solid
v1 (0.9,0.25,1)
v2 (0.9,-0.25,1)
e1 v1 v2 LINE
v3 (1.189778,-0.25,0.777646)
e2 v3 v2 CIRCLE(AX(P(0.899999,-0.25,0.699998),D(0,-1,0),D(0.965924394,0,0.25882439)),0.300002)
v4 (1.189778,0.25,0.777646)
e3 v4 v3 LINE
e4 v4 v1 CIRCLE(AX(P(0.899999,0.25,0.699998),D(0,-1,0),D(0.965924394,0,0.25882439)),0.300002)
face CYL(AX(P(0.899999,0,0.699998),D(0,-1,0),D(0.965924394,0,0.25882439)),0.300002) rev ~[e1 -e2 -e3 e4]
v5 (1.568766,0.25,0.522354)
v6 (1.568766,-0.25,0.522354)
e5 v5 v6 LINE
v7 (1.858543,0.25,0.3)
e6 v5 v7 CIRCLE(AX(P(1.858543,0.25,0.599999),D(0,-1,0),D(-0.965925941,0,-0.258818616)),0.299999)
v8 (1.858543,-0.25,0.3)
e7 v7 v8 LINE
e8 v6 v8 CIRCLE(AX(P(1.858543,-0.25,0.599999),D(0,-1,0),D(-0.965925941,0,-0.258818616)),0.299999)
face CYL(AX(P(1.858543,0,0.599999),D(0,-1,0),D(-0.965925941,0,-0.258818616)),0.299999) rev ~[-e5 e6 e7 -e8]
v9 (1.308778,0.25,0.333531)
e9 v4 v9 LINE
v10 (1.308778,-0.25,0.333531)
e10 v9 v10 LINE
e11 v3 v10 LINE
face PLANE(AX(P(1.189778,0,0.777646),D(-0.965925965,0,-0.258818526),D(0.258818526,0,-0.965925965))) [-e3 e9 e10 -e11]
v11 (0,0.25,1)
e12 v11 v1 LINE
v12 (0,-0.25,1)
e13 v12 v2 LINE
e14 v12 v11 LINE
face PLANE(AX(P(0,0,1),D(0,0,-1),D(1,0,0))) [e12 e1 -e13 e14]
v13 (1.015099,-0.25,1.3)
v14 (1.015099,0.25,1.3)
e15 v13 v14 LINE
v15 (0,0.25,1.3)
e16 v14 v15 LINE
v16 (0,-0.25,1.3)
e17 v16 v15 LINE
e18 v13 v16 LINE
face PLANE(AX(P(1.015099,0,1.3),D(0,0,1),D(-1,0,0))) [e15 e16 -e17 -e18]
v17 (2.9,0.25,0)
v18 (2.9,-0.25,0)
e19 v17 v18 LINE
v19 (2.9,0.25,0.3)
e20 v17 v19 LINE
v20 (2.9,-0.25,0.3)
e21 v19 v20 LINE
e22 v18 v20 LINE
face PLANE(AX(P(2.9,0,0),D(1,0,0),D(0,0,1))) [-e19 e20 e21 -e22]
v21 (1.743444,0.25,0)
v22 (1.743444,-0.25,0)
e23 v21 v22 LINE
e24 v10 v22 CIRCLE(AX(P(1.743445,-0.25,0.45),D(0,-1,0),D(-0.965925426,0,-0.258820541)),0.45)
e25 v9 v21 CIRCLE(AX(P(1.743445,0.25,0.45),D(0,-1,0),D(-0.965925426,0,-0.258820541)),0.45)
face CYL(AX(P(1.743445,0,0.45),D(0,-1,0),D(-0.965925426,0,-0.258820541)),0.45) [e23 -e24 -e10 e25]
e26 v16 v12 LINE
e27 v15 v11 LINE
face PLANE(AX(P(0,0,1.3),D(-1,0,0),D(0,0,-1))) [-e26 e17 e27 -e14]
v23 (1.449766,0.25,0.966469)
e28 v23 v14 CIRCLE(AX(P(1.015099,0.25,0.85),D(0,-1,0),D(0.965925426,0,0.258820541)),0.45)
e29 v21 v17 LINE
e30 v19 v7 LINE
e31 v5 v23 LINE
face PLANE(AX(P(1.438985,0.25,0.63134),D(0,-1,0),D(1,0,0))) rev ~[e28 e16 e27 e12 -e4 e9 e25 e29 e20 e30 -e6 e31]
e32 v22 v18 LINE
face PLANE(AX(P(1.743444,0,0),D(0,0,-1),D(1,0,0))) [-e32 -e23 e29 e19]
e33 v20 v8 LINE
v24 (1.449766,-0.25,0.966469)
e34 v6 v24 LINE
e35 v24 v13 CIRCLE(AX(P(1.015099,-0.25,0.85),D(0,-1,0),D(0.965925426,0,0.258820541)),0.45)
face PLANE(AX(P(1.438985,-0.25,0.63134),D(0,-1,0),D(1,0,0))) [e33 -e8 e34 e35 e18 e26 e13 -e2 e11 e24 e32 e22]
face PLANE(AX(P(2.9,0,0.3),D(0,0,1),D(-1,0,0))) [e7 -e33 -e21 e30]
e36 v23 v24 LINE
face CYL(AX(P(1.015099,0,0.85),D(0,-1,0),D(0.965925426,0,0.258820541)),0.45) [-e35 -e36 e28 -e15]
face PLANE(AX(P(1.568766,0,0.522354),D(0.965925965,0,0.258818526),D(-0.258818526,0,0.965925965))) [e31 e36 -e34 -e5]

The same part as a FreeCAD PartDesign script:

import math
import FreeCAD as App
import Part
import Sketcher
Q = App.Units.Quantity

doc = App.newDocument("Part")
params = doc.addObject("Spreadsheet::Sheet", "Params")
for row, (alias, value) in enumerate([
    ("sketch1_radius", "0.300002 mm"),
    ("sketch1_radius2", "0.299999 mm"),
    ("sketch1_radius3", "0.45 mm"),
    ("sketch1_width", "0.9 mm"),
    ("sketch1_height", "0.3 mm"),
    ("pad1_length", "0.5 mm"),
], start=1):
    params.set(f"A{row}", alias)
    params.set(f"B{row}", "=" + value)
    params.setAlias(f"B{row}", alias)

body = doc.addObject("PartDesign::Body", "Body")

sketch1 = body.newObject("Sketcher::SketchObject", "Sketch")
sketch1.AttachmentSupport = (doc.getObject("XZ_Plane"), [""])
sketch1.MapMode = "FlatFace"
sketch1.addGeometry(Part.LineSegment(App.Vector(0, 1, 0), App.Vector(0.9, 1, 0)), False)
sketch1.addGeometry(Part.ArcOfCircle(Part.Circle(App.Vector(0.9, 0.7, 0), App.Vector(0, 0, 1), 0.3), math.radians(15), math.radians(90)), False)
sketch1.addGeometry(Part.LineSegment(App.Vector(1.19, 0.78, 0), App.Vector(1.31, 0.33, 0)), False)
sketch1.addGeometry(Part.ArcOfCircle(Part.Circle(App.Vector(1.74, 0.45, 0), App.Vector(0, 0, 1), 0.45), math.radians(-165), math.radians(-90)), False)
sketch1.addGeometry(Part.LineSegment(App.Vector(1.74, 0, 0), App.Vector(2.9, 0, 0)), False)
sketch1.addGeometry(Part.LineSegment(App.Vector(2.9, 0, 0), App.Vector(2.9, 0.3, 0)), False)
sketch1.addGeometry(Part.LineSegment(App.Vector(2.9, 0.3, 0), App.Vector(1.86, 0.3, 0)), False)
sketch1.addGeometry(Part.ArcOfCircle(Part.Circle(App.Vector(1.86, 0.6, 0), App.Vector(0, 0, 1), 0.3), math.radians(-165), math.radians(-90)), False)
sketch1.addGeometry(Part.LineSegment(App.Vector(1.57, 0.52, 0), App.Vector(1.45, 0.97, 0)), False)
sketch1.addGeometry(Part.ArcOfCircle(Part.Circle(App.Vector(1.02, 0.85, 0), App.Vector(0, 0, 1), 0.45), math.radians(15), math.radians(90)), False)
sketch1.addGeometry(Part.LineSegment(App.Vector(1.02, 1.3, 0), App.Vector(0, 1.3, 0)), False)
sketch1.addGeometry(Part.LineSegment(App.Vector(0, 1.3, 0), App.Vector(0, 1, 0)), False)
sketch1.addConstraint(Sketcher.Constraint("Coincident", 0, 2, 1, 2))
sketch1.addConstraint(Sketcher.Constraint("Coincident", 1, 1, 2, 1))
sketch1.addConstraint(Sketcher.Constraint("Coincident", 2, 2, 3, 1))
sketch1.addConstraint(Sketcher.Constraint("Tangent", 3, 2, 4, 1))
sketch1.addConstraint(Sketcher.Constraint("Coincident", 4, 2, 5, 1))
sketch1.addConstraint(Sketcher.Constraint("Coincident", 5, 2, 6, 1))
sketch1.addConstraint(Sketcher.Constraint("Tangent", 6, 2, 7, 2))
sketch1.addConstraint(Sketcher.Constraint("Tangent", 7, 1, 8, 1))
sketch1.addConstraint(Sketcher.Constraint("Coincident", 8, 2, 9, 1))
sketch1.addConstraint(Sketcher.Constraint("Tangent", 9, 2, 10, 1))
sketch1.addConstraint(Sketcher.Constraint("Coincident", 10, 2, 11, 1))
sketch1.addConstraint(Sketcher.Constraint("Coincident", 11, 2, 0, 1))
sketch1.addConstraint(Sketcher.Constraint("Horizontal", 0))
sketch1.addConstraint(Sketcher.Constraint("Horizontal", 4))
sketch1.addConstraint(Sketcher.Constraint("Vertical", 5))
sketch1.addConstraint(Sketcher.Constraint("Horizontal", 6))
sketch1.addConstraint(Sketcher.Constraint("Horizontal", 10))
sketch1.addConstraint(Sketcher.Constraint("Vertical", 11))
sketch1.addConstraint(Sketcher.Constraint("Equal", 3, 9))
sketch1.addConstraint(Sketcher.Constraint("PointOnObject", 3, 2, -1))
sketch1.addConstraint(Sketcher.Constraint("PointOnObject", 10, 2, -2))
sketch1.addConstraint(Sketcher.Constraint("Parallel", 2, 8))
sketch1.addConstraint(Sketcher.Constraint("Vertical", 1, 3, 0, 2))
sketch1.addConstraint(Sketcher.Constraint("Equal", 5, 11))
sketch1.addConstraint(Sketcher.Constraint("Equal", 2, 8))
sketch1.addConstraint(Sketcher.Constraint("Radius", 1, Q("0.300002 mm")))
sketch1.addConstraint(Sketcher.Constraint("Radius", 7, Q("0.299999 mm")))
sketch1.addConstraint(Sketcher.Constraint("Radius", 3, Q("0.45 mm")))
sketch1.addConstraint(Sketcher.Constraint("DistanceX", 0, 1, 0, 2, Q("0.9 mm")))
sketch1.addConstraint(Sketcher.Constraint("DistanceY", 5, 1, 5, 2, Q("0.3 mm")))
sketch1.addConstraint(Sketcher.Constraint("DistanceY", -1, 1, 0, 2, Q("1 mm")))
sketch1.addConstraint(Sketcher.Constraint("DistanceX", -1, 1, 4, 2, Q("2.9 mm")))
sketch1.addConstraint(Sketcher.Constraint("DistanceX", 10, 2, 10, 1, Q("1.015099 mm")))
sketch1.addConstraint(Sketcher.Constraint("DistanceX", 1, 1, 2, 2, Q("0.119 mm")))
sketch1.addConstraint(Sketcher.Constraint("Distance", 2, Q("0.459782 mm")))
sketch1.addConstraint(Sketcher.Constraint("DistanceY", -1, 1, 2, 2, Q("0.333531 mm")))
sketch1.setExpression("Constraints[25]", "Params.sketch1_radius")
sketch1.setExpression("Constraints[26]", "Params.sketch1_radius2")
sketch1.setExpression("Constraints[27]", "Params.sketch1_radius3")
sketch1.setExpression("Constraints[28]", "Params.sketch1_width")
sketch1.setExpression("Constraints[29]", "Params.sketch1_height")
pad1 = body.newObject("PartDesign::Pad", "Pad")
pad1.Profile = sketch1
pad1.setExpression("Length", "Params.pad1_length")
pad1.Midplane = True

doc.recompute()
